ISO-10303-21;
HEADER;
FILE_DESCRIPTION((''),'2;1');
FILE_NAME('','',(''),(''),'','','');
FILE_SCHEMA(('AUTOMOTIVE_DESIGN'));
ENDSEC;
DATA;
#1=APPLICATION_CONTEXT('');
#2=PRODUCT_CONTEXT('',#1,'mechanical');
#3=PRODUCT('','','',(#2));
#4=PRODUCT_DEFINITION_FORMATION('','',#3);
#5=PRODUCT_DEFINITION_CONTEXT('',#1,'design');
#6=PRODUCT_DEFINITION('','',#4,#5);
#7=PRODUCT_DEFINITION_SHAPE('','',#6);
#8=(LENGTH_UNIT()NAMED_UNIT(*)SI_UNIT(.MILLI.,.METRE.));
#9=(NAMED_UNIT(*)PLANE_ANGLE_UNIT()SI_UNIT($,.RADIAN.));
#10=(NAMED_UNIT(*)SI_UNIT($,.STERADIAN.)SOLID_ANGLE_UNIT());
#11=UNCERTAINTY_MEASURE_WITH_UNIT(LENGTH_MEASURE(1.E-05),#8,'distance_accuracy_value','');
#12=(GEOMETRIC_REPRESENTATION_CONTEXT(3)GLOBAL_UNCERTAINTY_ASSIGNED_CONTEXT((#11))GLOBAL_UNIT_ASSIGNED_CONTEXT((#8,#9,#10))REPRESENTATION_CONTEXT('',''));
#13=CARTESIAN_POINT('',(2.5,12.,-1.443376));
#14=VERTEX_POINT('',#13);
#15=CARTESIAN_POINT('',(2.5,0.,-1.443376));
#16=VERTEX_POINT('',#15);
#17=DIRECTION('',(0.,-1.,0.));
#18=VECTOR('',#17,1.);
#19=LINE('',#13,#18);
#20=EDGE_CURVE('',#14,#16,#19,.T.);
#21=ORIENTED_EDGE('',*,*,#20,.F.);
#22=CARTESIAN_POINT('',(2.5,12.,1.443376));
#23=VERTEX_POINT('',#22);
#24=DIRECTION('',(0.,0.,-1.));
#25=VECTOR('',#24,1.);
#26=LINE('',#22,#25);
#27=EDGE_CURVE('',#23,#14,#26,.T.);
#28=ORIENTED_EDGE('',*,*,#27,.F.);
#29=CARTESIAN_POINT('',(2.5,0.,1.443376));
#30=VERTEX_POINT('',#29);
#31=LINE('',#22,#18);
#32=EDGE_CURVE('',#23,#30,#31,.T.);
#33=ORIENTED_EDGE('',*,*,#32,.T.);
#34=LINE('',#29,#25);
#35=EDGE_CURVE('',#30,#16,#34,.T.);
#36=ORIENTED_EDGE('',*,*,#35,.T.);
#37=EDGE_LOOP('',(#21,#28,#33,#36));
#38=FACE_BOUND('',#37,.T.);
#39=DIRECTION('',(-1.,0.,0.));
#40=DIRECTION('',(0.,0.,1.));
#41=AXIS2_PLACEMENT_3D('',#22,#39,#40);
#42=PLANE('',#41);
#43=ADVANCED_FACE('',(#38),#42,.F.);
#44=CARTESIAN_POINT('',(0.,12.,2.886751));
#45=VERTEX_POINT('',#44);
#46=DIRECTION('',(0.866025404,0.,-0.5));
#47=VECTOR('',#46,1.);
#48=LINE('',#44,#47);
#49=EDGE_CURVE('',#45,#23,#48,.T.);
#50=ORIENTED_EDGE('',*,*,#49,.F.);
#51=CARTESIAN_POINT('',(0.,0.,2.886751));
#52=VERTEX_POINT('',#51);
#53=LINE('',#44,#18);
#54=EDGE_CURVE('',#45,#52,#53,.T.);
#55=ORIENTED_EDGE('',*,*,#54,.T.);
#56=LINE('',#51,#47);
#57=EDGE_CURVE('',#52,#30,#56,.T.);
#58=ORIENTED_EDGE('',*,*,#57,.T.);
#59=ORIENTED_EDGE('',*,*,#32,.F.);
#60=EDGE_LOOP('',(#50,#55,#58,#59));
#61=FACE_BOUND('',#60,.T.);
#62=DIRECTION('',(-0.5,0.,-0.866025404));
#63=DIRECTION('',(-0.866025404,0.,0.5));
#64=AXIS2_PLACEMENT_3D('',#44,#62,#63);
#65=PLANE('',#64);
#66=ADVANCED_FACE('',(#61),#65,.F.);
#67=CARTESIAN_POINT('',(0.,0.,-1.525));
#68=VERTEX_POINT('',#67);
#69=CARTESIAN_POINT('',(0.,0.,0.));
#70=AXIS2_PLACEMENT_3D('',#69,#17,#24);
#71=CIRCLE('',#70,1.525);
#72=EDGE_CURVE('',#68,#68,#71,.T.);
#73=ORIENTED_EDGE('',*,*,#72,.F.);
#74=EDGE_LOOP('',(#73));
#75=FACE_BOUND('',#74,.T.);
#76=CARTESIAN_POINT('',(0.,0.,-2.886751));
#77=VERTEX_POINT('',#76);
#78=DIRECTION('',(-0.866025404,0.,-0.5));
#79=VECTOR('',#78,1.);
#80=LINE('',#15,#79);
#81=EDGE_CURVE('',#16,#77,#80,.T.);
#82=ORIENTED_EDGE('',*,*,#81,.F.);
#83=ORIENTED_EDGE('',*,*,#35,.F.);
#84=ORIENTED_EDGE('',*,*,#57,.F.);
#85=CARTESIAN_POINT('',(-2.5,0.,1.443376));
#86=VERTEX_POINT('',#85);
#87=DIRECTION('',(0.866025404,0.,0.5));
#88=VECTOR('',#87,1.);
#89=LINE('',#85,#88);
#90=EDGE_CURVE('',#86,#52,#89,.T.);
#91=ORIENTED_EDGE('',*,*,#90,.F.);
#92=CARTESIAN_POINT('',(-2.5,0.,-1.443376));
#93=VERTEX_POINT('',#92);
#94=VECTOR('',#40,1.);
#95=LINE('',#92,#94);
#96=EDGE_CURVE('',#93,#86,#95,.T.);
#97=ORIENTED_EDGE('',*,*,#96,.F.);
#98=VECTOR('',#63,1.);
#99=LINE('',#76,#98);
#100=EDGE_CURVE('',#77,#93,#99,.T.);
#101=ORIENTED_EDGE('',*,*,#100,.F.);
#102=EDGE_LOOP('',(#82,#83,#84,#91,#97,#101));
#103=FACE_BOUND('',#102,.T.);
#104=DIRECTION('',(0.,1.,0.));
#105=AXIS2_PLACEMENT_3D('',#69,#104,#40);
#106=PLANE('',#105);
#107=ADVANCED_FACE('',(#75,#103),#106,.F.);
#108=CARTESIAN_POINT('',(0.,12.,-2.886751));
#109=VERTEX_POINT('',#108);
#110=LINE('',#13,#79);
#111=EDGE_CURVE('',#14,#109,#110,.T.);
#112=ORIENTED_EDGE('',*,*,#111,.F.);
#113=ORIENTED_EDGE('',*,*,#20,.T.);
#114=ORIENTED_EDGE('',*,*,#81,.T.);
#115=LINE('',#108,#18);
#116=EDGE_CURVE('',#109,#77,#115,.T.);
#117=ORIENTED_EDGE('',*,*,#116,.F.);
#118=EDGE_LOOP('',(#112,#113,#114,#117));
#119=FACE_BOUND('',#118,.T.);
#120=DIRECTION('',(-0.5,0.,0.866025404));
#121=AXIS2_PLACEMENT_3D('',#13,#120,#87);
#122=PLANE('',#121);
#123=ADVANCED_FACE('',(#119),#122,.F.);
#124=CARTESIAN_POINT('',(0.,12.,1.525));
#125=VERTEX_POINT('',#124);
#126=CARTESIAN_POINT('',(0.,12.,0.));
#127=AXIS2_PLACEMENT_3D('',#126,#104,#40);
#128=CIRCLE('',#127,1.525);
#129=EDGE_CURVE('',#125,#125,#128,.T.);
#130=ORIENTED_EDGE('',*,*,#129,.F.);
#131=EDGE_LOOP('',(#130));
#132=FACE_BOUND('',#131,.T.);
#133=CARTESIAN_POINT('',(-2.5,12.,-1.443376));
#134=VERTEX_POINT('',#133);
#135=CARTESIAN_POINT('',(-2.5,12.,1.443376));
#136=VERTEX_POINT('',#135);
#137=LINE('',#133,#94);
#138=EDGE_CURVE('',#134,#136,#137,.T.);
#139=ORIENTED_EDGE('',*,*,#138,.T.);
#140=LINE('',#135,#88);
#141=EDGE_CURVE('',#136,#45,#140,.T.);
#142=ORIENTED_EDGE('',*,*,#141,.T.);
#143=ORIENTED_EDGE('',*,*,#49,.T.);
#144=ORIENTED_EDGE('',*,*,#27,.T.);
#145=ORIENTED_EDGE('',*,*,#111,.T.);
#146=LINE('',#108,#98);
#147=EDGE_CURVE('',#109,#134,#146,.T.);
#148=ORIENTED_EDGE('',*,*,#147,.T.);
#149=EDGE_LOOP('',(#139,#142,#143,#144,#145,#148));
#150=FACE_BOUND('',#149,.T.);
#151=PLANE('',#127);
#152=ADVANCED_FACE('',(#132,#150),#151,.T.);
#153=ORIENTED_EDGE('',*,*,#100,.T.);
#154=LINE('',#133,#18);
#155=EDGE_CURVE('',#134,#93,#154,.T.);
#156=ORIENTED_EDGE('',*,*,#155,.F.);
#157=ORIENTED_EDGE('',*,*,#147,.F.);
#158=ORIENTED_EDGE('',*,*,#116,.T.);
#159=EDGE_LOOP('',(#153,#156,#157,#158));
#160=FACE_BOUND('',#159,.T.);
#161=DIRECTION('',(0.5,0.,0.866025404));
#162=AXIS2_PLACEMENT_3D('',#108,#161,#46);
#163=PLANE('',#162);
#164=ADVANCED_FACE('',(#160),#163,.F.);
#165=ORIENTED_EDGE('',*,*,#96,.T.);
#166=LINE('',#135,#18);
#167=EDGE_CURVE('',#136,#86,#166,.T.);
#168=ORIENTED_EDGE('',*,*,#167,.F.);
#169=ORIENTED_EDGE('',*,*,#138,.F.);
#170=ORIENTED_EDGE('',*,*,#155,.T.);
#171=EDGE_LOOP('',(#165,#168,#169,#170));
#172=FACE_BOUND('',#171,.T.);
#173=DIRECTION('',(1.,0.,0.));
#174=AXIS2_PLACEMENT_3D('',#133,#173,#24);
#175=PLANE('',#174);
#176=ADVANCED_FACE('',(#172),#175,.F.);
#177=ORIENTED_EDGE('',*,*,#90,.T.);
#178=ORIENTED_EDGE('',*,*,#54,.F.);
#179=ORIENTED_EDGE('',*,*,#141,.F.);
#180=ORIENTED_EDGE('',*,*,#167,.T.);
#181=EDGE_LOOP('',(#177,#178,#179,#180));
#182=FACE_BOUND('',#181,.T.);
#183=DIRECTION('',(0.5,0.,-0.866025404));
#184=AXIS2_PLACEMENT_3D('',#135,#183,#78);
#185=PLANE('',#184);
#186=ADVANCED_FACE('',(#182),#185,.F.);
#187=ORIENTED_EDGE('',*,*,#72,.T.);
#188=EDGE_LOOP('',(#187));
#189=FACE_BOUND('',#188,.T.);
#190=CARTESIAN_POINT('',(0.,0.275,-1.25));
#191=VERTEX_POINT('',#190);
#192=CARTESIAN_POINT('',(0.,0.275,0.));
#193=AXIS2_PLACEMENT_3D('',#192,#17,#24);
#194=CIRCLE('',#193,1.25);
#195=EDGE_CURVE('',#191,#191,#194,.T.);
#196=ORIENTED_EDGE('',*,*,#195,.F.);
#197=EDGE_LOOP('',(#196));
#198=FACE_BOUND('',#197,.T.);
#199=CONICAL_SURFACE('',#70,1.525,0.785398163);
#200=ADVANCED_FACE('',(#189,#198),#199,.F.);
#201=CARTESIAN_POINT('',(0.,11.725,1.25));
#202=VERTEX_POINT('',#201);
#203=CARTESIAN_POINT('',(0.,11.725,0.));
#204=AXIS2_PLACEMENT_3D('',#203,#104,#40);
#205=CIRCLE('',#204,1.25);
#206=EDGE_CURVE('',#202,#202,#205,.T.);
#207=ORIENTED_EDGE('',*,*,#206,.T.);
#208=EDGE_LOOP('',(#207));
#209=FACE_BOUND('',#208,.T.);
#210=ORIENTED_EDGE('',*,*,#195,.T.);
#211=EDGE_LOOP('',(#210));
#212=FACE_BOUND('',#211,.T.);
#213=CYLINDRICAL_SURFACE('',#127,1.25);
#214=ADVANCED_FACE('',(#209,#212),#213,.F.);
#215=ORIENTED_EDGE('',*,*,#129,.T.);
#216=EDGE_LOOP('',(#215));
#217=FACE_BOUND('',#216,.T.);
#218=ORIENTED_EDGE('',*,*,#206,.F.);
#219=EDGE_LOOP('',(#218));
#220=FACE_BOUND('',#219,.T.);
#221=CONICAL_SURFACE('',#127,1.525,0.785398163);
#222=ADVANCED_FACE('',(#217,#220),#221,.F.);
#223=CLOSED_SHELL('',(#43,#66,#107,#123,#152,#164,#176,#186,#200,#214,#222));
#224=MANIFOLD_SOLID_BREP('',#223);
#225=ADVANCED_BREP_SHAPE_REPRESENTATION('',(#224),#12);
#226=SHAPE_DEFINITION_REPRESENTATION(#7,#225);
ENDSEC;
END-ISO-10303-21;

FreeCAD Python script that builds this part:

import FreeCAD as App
import Part
import Sketcher
Q = App.Units.Quantity


def add_polygon(sketch, points):
    """Adds a closed chain of lines whose ends are joined by coincident constraints."""
    first, n = sketch.GeometryCount, len(points)
    for a, b in zip(points, points[1:] + points[:1]):
        sketch.addGeometry(Part.LineSegment(App.Vector(*a, 0), App.Vector(*b, 0)), False)
    for i in range(n):
        sketch.addConstraint(Sketcher.Constraint("Coincident", first + i, 2, first + (i + 1) % n, 1))

doc = App.newDocument("Part")
body = doc.addObject("PartDesign::Body", "Body")

sketch1 = body.newObject("Sketcher::SketchObject", "Sketch")
sketch1.AttachmentSupport = (doc.getObject("XZ_Plane"), [""])
sketch1.MapMode = "FlatFace"
add_polygon(sketch1, [(-2.5, -1.4), (-2.5, 1.4), (0, 2.9), (2.5, 1.4), (2.5, -1.4), (0, -2.9)])
sketch1.addConstraint([
    Sketcher.Constraint("Vertical", 0),
    Sketcher.Constraint("Vertical", 3),
    Sketcher.Constraint("Symmetric", 0, 2, 3, 2, -1, 1),
    Sketcher.Constraint("Symmetric", 1, 2, 4, 2, -1, 1),
    Sketcher.Constraint("PointOnObject", 1, 2, -2),
    Sketcher.Constraint("Parallel", 2, 5),
    Sketcher.Constraint("Horizontal", 0, 2, 2, 2),
    Sketcher.Constraint("Angle", 1, Q("30 deg")),
    Sketcher.Constraint("DistanceX", 0, 2, 2, 2, 5.0),
    Sketcher.Constraint("DistanceY", 0, 1, 0, 2, 2.886751),
])
pad1 = body.newObject("PartDesign::Pad", "Pad")
pad1.Profile = sketch1
pad1.Length = 12
pad1.Reversed = True

sketch2 = body.newObject("Sketcher::SketchObject", "Sketch001")
sketch2.AttachmentSupport = (doc.getObject("XZ_Plane"), [""])
sketch2.MapMode = "FlatFace"
sketch2.AttachmentOffset = App.Placement(App.Vector(0, 0, -12), App.Rotation())
sketch2.addGeometry(Part.Circle(App.Vector(0, 0, 0), App.Vector(0, 0, 1), 1.2), False)
sketch2.addConstraint([
    Sketcher.Constraint("Coincident", 0, 3, -1, 1),
    Sketcher.Constraint("Diameter", 0, 2.5),
])
doc.recompute()
hole = body.newObject("PartDesign::Hole", "Hole")
hole.Profile = sketch2
hole.ThreadType = "None"
hole.Diameter = 2.5
hole.DepthType = "Dimension"
hole.Depth = 7.5
hole.DrillPoint = "Angled"
hole.DrillPointAngle = 118
hole.HoleCutType = "Countersink"
hole.HoleCutDiameter = 3.05
hole.HoleCutCountersinkAngle = 90
hole.Reversed = True

sketch3 = body.newObject("Sketcher::SketchObject", "Sketch002")
sketch3.AttachmentSupport = (doc.getObject("XZ_Plane"), [""])
sketch3.MapMode = "FlatFace"
sketch3.addGeometry(Part.Circle(App.Vector(0, 0, 0), App.Vector(0, 0, 1), 1.2), False)
sketch3.addConstraint([
    Sketcher.Constraint("Coincident", 0, 3, -1, 1),
    Sketcher.Constraint("Diameter", 0, 2.5),
])
doc.recompute()
hole2 = body.newObject("PartDesign::Hole", "Hole001")
hole2.Profile = sketch3
hole2.ThreadType = "None"
hole2.Diameter = 2.5
hole2.DepthType = "Dimension"
hole2.Depth = 7.5
hole2.DrillPoint = "Angled"
hole2.DrillPointAngle = 118
hole2.HoleCutType = "Countersink"
hole2.HoleCutDiameter = 3.05
hole2.HoleCutCountersinkAngle = 90

doc.recompute()
